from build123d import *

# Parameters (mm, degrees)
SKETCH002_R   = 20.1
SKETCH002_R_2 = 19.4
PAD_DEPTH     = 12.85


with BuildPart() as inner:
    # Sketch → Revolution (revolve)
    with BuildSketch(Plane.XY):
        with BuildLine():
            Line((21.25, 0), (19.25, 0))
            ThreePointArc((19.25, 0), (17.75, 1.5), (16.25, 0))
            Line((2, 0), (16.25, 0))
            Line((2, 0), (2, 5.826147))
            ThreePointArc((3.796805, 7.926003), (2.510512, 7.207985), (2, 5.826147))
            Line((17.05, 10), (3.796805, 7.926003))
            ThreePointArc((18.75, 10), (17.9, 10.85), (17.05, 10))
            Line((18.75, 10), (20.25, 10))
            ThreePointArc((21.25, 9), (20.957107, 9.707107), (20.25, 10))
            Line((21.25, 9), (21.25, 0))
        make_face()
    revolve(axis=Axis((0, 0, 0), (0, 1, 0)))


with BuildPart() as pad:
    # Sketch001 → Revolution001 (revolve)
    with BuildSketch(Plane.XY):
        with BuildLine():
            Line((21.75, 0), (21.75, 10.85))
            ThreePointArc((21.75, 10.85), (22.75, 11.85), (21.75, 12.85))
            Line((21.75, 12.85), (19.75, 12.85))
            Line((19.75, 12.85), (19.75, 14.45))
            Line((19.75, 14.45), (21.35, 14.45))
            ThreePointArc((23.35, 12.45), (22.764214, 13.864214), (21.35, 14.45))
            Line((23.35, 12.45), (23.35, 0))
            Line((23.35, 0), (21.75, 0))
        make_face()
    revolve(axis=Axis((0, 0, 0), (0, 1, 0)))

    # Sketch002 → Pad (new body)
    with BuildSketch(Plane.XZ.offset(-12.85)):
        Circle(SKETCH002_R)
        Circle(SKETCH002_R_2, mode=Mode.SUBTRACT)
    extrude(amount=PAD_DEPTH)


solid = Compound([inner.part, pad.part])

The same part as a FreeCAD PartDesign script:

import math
import FreeCAD as App
import Part
import Sketcher
Q = App.Units.Quantity

doc = App.newDocument("Part")
body = doc.addObject("PartDesign::Body", "Body")

# Sketch on XY plane
sketch1 = body.newObject("Sketcher::SketchObject", "Sketch")
sketch1.AttachmentSupport = (doc.getObject("XY_Plane"), [""])
sketch1.MapMode = "FlatFace"
sketch1.addGeometry([
    Part.LineSegment(App.Vector(19.2, 0, 0), App.Vector(21.2, 0, 0)),  # 0
    Part.LineSegment(App.Vector(21.2, 0, 0), App.Vector(21.2, 9, 0)),  # 1
    Part.ArcOfCircle(Part.Circle(App.Vector(20.3, 9, 0), App.Vector(0, 0, 1), 1), math.radians(0), math.radians(90)),  # 2
    Part.LineSegment(App.Vector(20.2, 10, 0), App.Vector(18.8, 10, 0)),  # 3
    Part.ArcOfCircle(Part.Circle(App.Vector(17.9, 10, 0), App.Vector(0, 0, 1), 0.8), math.radians(0), math.radians(180)),  # 4
    Part.LineSegment(App.Vector(17.1, 10, 0), App.Vector(3.8, 7.9, 0)),  # 5
    Part.ArcOfCircle(Part.Circle(App.Vector(4.1, 5.8, 0), App.Vector(0, 0, 1), 2.1), math.radians(99), math.radians(180)),  # 6
    Part.LineSegment(App.Vector(2, 5.8, 0), App.Vector(2, 0, 0)),  # 7
    Part.LineSegment(App.Vector(2, 0, 0), App.Vector(16.2, 0, 0)),  # 8
    Part.ArcOfCircle(Part.Circle(App.Vector(17.8, 0, 0), App.Vector(0, 0, 1), 1.5), math.radians(0), math.radians(180)),  # 9
], False)
sketch1.addConstraint([
    Sketcher.Constraint("Coincident", 0, 2, 1, 1),
    Sketcher.Constraint("Tangent", 1, 2, 2, 1),
    Sketcher.Constraint("Tangent", 2, 2, 3, 1),
    Sketcher.Constraint("Coincident", 3, 2, 4, 1),
    Sketcher.Constraint("Coincident", 4, 2, 5, 1),
    Sketcher.Constraint("Tangent", 5, 2, 6, 1),
    Sketcher.Constraint("Tangent", 6, 2, 7, 1),
    Sketcher.Constraint("Coincident", 7, 2, 8, 1),
    Sketcher.Constraint("Coincident", 8, 2, 9, 2),
    Sketcher.Constraint("Coincident", 9, 1, 0, 1),
    Sketcher.Constraint("Horizontal", 0),
    Sketcher.Constraint("Vertical", 1),
    Sketcher.Constraint("Horizontal", 3),
    Sketcher.Constraint("Vertical", 7),
    Sketcher.Constraint("Horizontal", 8),
    Sketcher.Constraint("PointOnObject", 9, 3, -1),
    Sketcher.Constraint("PointOnObject", 0, 2, -1),
    Sketcher.Constraint("PointOnObject", 7, 2, -1),
    Sketcher.Constraint("Horizontal", 4, 3, 2, 2),
    Sketcher.Constraint("Horizontal", 3, 2, 4, 2),
    Sketcher.Constraint("Radius", 2, Q("0.999999 mm")),
    Sketcher.Constraint("Radius", 9, Q("1.5 mm")),
    Sketcher.Constraint("DistanceX", 0, 1, 0, 2, Q("2 mm")),
    Sketcher.Constraint("DistanceY", 1, 1, 1, 2, Q("9 mm")),
    Sketcher.Constraint("Radius", 4, Q("0.85 mm")),
    Sketcher.Constraint("DistanceX", 3, 2, 3, 1, Q("1.5 mm")),
    Sketcher.Constraint("DistanceX", -1, 1, 6, 2, Q("2 mm")),
    Sketcher.Constraint("DistanceX", 8, 1, 8, 2, Q("14.25 mm")),
    Sketcher.Constraint("Radius", 6, Q("2.125411 mm")),
    Sketcher.Constraint("DistanceY", 7, 2, 7, 1, Q("5.826147 mm")),
])
revolution = body.newObject("PartDesign::Revolution", "Revolution")
revolution.Profile = sketch1
revolution.ReferenceAxis = (sketch1, ["V_Axis"])
revolution.Angle = 360
body2 = doc.addObject("PartDesign::Body", "Body001")

# Sketch on XY plane
sketch2 = body2.newObject("Sketcher::SketchObject", "Sketch001")
sketch2.AttachmentSupport = (doc.getObject("XY_Plane001"), [""])
sketch2.MapMode = "FlatFace"
sketch2.addGeometry([
    Part.LineSegment(App.Vector(21.8, 10.8, 0), App.Vector(21.8, 0, 0)),  # 0
    Part.LineSegment(App.Vector(21.8, 0, 0), App.Vector(23.4, 0, 0)),  # 1
    Part.LineSegment(App.Vector(23.4, 0, 0), App.Vector(23.4, 12.4, 0)),  # 2
    Part.ArcOfCircle(Part.Circle(App.Vector(21.4, 12.5, 0), App.Vector(0, 0, 1), 2), math.radians(0), math.radians(90)),  # 3
    Part.LineSegment(App.Vector(21.4, 14.4, 0), App.Vector(19.8, 14.4, 0)),  # 4
    Part.LineSegment(App.Vector(19.8, 14.4, 0), App.Vector(19.8, 12.8, 0)),  # 5
    Part.LineSegment(App.Vector(19.8, 12.8, 0), App.Vector(21.8, 12.8, 0)),  # 6
    Part.ArcOfCircle(Part.Circle(App.Vector(21.8, 11.8, 0), App.Vector(0, 0, 1), 1), math.radians(-90), math.radians(90)),  # 7
], False)
sketch2.addConstraint([
    Sketcher.Constraint("Coincident", 0, 2, 1, 1),
    Sketcher.Constraint("Coincident", 1, 2, 2, 1),
    Sketcher.Constraint("Tangent", 2, 2, 3, 1),
    Sketcher.Constraint("Tangent", 3, 2, 4, 1),
    Sketcher.Constraint("Coincident", 4, 2, 5, 1),
    Sketcher.Constraint("Coincident", 5, 2, 6, 1),
    Sketcher.Constraint("Tangent", 6, 2, 7, 2),
    Sketcher.Constraint("Coincident", 7, 1, 0, 1),
    Sketcher.Constraint("Vertical", 0),
    Sketcher.Constraint("Horizontal", 1),
    Sketcher.Constraint("Vertical", 2),
    Sketcher.Constraint("Horizontal", 4),
    Sketcher.Constraint("Vertical", 5),
    Sketcher.Constraint("Horizontal", 6),
    Sketcher.Constraint("PointOnObject", 0, 2, -1),
    Sketcher.Constraint("Vertical", 7, 3, 0, 2),
    Sketcher.Constraint("Equal", 1, 4),
    Sketcher.Constraint("Equal", 4, 5),
    Sketcher.Constraint("Radius", 3, Q("1.999999 mm")),
    Sketcher.Constraint("Radius", 7, Q("1 mm")),
    Sketcher.Constraint("DistanceX", 1, 1, 1, 2, Q("1.6 mm")),
    Sketcher.Constraint("DistanceY", 0, 2, 0, 1, Q("10.85 mm")),
    Sketcher.Constraint("DistanceX", -1, 1, 3, 3, Q("21.350001 mm")),
])
revolution2 = body2.newObject("PartDesign::Revolution", "Revolution001")
revolution2.Profile = sketch2
revolution2.ReferenceAxis = (sketch2, ["V_Axis"])
revolution2.Angle = 360

# Sketch on XZ plane
sketch3 = body2.newObject("Sketcher::SketchObject", "Sketch002")
sketch3.AttachmentSupport = (doc.getObject("XZ_Plane001"), [""])
sketch3.MapMode = "FlatFace"
sketch3.AttachmentOffset = App.Placement(App.Vector(0, 0, -12.85), App.Rotation())
sketch3.addGeometry([
    Part.Circle(App.Vector(0, 0, 0), App.Vector(0, 0, 1), 20),
    Part.Circle(App.Vector(0, 0, 0), App.Vector(0, 0, 1), 19),
], False)
sketch3.addConstraint([
    Sketcher.Constraint("Coincident", 0, 3, -1, 1),
    Sketcher.Constraint("Coincident", 1, 3, -1, 1),
    Sketcher.Constraint("Diameter", 0, Q("40.2 mm")),
    Sketcher.Constraint("Diameter", 1, Q("38.8 mm")),
])
pad1 = body2.newObject("PartDesign::Pad", "Pad")
pad1.Profile = sketch3
pad1.Length = 12.85

doc.recompute()
